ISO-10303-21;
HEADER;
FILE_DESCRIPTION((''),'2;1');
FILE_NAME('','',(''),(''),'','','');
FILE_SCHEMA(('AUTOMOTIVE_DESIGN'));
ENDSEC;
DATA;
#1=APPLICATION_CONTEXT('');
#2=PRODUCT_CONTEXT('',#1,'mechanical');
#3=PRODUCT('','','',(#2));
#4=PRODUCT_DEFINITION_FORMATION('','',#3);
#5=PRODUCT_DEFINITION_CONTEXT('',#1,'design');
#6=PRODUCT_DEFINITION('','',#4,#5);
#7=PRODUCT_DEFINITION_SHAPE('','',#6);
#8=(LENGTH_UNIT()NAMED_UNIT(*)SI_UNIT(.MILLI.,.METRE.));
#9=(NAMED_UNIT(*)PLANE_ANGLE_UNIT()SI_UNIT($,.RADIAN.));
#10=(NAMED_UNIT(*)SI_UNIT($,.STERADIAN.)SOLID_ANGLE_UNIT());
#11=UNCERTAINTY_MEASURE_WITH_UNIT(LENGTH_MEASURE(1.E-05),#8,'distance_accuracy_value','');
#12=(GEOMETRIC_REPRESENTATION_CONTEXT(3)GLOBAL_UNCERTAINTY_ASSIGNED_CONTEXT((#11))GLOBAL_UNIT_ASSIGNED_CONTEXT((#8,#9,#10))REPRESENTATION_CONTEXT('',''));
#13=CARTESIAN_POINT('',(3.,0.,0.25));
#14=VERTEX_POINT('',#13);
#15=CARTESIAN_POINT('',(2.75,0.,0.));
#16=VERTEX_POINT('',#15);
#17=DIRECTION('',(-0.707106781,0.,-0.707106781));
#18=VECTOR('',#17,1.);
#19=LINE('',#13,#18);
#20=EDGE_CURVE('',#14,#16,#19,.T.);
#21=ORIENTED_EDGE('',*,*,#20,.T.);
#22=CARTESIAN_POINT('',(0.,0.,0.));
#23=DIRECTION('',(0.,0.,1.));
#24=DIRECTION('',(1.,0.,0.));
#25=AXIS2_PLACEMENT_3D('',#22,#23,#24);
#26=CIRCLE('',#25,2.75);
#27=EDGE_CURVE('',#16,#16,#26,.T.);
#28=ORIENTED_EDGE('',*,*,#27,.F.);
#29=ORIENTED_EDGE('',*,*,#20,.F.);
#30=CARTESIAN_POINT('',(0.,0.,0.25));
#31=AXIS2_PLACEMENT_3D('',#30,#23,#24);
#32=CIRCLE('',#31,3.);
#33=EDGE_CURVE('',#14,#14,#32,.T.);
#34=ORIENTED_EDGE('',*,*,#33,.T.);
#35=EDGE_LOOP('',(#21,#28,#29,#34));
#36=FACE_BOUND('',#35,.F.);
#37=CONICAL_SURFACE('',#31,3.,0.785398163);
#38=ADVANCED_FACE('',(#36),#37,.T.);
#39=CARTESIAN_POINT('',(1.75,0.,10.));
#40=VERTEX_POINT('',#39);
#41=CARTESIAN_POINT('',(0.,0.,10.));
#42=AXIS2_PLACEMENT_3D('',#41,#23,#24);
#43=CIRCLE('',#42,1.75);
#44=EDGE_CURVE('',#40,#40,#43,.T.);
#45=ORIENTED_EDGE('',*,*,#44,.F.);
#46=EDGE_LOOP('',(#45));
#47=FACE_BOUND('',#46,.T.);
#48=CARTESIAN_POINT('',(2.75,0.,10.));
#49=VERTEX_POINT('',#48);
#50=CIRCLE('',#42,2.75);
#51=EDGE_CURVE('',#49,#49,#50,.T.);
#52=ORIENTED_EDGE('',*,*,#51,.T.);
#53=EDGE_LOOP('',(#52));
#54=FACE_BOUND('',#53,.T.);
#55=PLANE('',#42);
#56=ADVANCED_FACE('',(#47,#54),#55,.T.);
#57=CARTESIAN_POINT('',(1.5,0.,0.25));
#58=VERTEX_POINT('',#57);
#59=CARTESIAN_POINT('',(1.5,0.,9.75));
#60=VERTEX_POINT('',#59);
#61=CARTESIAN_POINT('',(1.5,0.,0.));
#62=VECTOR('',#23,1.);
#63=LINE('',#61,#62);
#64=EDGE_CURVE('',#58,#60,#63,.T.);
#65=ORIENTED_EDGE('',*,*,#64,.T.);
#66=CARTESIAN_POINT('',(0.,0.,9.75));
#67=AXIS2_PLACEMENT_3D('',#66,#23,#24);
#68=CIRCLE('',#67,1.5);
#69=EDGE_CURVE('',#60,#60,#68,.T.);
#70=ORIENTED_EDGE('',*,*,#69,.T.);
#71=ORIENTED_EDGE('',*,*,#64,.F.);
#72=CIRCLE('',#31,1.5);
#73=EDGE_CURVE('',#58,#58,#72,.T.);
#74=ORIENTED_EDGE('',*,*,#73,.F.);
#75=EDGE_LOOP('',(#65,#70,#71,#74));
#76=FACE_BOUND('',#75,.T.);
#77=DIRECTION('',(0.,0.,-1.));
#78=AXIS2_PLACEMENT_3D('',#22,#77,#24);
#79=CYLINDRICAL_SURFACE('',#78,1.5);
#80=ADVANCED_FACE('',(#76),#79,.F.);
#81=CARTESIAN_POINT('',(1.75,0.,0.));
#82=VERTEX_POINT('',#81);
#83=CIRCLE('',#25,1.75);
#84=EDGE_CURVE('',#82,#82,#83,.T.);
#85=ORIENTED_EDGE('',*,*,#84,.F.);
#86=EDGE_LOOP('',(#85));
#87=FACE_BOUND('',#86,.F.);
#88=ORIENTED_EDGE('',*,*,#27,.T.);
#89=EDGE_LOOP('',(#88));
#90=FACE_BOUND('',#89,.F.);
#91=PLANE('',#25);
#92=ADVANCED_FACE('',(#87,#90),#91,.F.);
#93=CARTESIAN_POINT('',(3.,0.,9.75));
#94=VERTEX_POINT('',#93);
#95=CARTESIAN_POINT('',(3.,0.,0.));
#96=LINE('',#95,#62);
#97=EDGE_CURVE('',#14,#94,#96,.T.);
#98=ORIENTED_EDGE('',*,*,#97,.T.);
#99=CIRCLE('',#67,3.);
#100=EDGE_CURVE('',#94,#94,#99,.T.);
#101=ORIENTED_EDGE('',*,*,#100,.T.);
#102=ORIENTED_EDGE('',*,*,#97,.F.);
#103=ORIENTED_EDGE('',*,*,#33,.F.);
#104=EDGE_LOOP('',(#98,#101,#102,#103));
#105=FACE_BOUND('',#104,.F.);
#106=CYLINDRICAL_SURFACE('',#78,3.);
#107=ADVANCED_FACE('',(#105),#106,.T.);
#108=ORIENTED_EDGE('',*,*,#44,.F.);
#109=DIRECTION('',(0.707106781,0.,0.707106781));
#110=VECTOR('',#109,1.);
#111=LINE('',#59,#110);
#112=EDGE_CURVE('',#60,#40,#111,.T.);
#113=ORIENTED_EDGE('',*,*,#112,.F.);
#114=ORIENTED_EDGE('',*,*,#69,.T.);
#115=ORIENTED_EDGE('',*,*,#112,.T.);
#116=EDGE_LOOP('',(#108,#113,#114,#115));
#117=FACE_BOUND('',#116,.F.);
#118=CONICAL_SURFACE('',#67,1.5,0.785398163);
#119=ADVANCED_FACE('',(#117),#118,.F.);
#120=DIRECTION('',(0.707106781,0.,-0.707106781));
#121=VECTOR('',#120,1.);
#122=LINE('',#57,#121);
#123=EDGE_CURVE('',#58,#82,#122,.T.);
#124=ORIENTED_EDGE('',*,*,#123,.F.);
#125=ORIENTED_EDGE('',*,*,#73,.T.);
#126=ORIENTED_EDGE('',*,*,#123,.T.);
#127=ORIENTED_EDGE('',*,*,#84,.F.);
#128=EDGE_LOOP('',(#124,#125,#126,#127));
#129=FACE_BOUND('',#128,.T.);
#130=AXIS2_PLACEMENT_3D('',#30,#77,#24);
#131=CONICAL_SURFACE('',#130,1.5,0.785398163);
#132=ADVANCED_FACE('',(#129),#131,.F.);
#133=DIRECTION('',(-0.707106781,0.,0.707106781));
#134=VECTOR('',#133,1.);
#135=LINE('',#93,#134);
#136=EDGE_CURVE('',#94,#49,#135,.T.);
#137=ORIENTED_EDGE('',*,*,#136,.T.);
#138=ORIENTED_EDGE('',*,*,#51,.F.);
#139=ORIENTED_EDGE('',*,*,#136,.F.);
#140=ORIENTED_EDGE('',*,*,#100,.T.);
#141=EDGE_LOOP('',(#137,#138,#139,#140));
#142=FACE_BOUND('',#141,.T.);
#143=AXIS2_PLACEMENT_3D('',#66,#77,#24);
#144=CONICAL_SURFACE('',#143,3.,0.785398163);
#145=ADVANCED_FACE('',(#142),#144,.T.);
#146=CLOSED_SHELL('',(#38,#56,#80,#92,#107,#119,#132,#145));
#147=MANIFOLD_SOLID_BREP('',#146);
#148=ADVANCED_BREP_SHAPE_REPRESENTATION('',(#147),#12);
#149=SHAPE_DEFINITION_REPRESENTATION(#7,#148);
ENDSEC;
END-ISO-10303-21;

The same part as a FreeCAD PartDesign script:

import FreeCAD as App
import Part
import Sketcher
Q = App.Units.Quantity


def edges_at(feature, points):
    """Names of the edges that pass closest to the given points."""
    edges = feature.Shape.Edges
    near = lambda p: min(range(len(edges)), key=lambda i: edges[i].distToShape(Part.Vertex(*p))[0])
    return sorted({f"Edge{near(p) + 1}" for p in points})

doc = App.newDocument("Part")
params = doc.addObject("Spreadsheet::Sheet", "Params")
for row, (alias, value) in enumerate([
    ("sketch1_diameter", "6 mm"),
    ("sketch1_diameter2", "3 mm"),
    ("pad1_length", "10 mm"),
    ("chamfer_size", "0.25 mm"),
], start=1):
    params.set(f"A{row}", alias)
    params.set(f"B{row}", "=" + value)
    params.setAlias(f"B{row}", alias)

body = doc.addObject("PartDesign::Body", "Body")

# Sketch on XY plane
sketch1 = body.newObject("Sketcher::SketchObject", "Sketch")
sketch1.AttachmentSupport = (doc.getObject("XY_Plane"), [""])
sketch1.MapMode = "FlatFace"
sketch1.addGeometry([
    Part.Circle(App.Vector(0, 0, 0), App.Vector(0, 0, 1), 3),
    Part.Circle(App.Vector(0, 0, 0), App.Vector(0, 0, 1), 1.5),
], False)
sketch1.addConstraint([
    Sketcher.Constraint("Coincident", 0, 3, -1, 1),
    Sketcher.Constraint("Coincident", 1, 3, -1, 1),
    Sketcher.Constraint("Diameter", 0, Q("6 mm")),
    Sketcher.Constraint("Diameter", 1, Q("3 mm")),
])
sketch1.setExpression("Constraints[2]", "Params.sketch1_diameter")
sketch1.setExpression("Constraints[3]", "Params.sketch1_diameter2")
pad1 = body.newObject("PartDesign::Pad", "Pad")
pad1.Profile = sketch1
pad1.setExpression("Length", "Params.pad1_length")
doc.recompute()

chamfer = body.newObject("PartDesign::Chamfer", "Chamfer")
chamfer.Base = (pad1, edges_at(pad1, [
    (-1.5, 0, 10),
    (-1.5, 0, 0),
    (-3, 0, 10),
    (-3, 0, 0),
]))
chamfer.setExpression("Size", "Params.chamfer_size")

doc.recompute()
